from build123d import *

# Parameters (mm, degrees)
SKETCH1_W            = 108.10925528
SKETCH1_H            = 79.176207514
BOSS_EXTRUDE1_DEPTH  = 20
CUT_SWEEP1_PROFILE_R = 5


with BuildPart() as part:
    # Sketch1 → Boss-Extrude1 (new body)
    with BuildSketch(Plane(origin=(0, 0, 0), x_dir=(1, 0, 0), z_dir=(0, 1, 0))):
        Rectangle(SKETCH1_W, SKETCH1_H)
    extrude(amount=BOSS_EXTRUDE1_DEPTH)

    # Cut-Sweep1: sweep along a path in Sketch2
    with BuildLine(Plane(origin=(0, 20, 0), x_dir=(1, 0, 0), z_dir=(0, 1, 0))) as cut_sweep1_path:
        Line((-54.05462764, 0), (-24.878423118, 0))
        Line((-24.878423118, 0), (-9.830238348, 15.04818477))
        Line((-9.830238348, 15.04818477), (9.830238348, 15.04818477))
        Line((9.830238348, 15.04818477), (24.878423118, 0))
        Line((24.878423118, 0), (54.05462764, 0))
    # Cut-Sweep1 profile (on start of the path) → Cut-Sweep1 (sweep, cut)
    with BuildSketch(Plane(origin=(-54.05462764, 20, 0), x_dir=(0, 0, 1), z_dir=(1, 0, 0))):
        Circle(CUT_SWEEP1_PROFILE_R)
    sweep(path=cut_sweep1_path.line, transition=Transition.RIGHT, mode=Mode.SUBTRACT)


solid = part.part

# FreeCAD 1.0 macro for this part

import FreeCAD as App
import Part
import Sketcher
from FreeCAD import Vector
Q = App.Units.Quantity


def add_polygon(sketch, points):
    """Adds a closed chain of lines whose ends are joined by coincident constraints."""
    first, n = sketch.GeometryCount, len(points)
    for a, b in zip(points, points[1:] + points[:1]):
        sketch.addGeometry(Part.LineSegment(App.Vector(*a, 0), App.Vector(*b, 0)), False)
    for i in range(n):
        sketch.addConstraint(Sketcher.Constraint("Coincident", first + i, 2, first + (i + 1) % n, 1))

doc = App.newDocument("Part")
body = doc.addObject("PartDesign::Body", "Body")

sketch1 = body.newObject("Sketcher::SketchObject", "Sketch")
sketch1.AttachmentSupport = (doc.getObject("XZ_Plane"), [""])
sketch1.MapMode = "FlatFace"
add_polygon(sketch1, [(-54, -40), (-54, 40), (54, 40), (54, -40)])
sketch1.addConstraint([
    Sketcher.Constraint("Vertical", 0),
    Sketcher.Constraint("Horizontal", 1),
    Sketcher.Constraint("Vertical", 2),
    Sketcher.Constraint("Horizontal", 3),
    Sketcher.Constraint("Symmetric", 0, 2, 2, 2, -1, 1),
    Sketcher.Constraint("DistanceX", 1, 1, 1, 2, Q("108.109255 mm")),
    Sketcher.Constraint("DistanceY", 0, 1, 0, 2, Q("79.176208 mm")),
])
pad1 = body.newObject("PartDesign::Pad", "Pad")
pad1.Profile = sketch1
pad1.Length = 20
pad1.Reversed = True

sketch2 = body.newObject("Sketcher::SketchObject", "Sketch001")
sketch2.AttachmentSupport = (doc.getObject("YZ_Plane"), [""])
sketch2.MapMode = "FlatFace"
sketch2.AttachmentOffset = App.Placement(Vector(0, 0, -54.054628), App.Rotation())
sketch2.addGeometry(Part.Circle(Vector(20, 0, 0), Vector(0, 0, 1), 5), False)
sketch2.addConstraint([
    Sketcher.Constraint("PointOnObject", 0, 3, -1),
    Sketcher.Constraint("Diameter", 0, Q("10 mm")),
    Sketcher.Constraint("DistanceX", -1, 1, 0, 3, Q("20 mm")),
])

sketch3 = body.newObject("Sketcher::SketchObject", "Sketch002")
sketch3.AttachmentSupport = (doc.getObject("XZ_Plane"), [""])
sketch3.MapMode = "FlatFace"
sketch3.AttachmentOffset = App.Placement(Vector(0, 0, -20), App.Rotation())
sketch3.addGeometry([
    Part.LineSegment(Vector(-54, 0, 0), Vector(-25, 0, 0)),
    Part.LineSegment(Vector(-25, 0, 0), Vector(-10, -15, 0)),
    Part.LineSegment(Vector(-10, -15, 0), Vector(10, -15, 0)),
    Part.LineSegment(Vector(10, -15, 0), Vector(25, 0, 0)),
    Part.LineSegment(Vector(25, 0, 0), Vector(54, 0, 0)),
], False)
sketch3.addConstraint([
    Sketcher.Constraint("Coincident", 0, 2, 1, 1),
    Sketcher.Constraint("Coincident", 1, 2, 2, 1),
    Sketcher.Constraint("Coincident", 2, 2, 3, 1),
    Sketcher.Constraint("Coincident", 3, 2, 4, 1),
    Sketcher.Constraint("Horizontal", 0),
    Sketcher.Constraint("Horizontal", 2),
    Sketcher.Constraint("Horizontal", 4),
    Sketcher.Constraint("Symmetric", 0, 2, 3, 2, -1, 1),
    Sketcher.Constraint("Symmetric", 0, 1, 4, 2, -2),
    Sketcher.Constraint("Perpendicular", 1, 3),
    Sketcher.Constraint("Equal", 1, 3),
    Sketcher.Constraint("DistanceX", 0, 1, 0, 2, Q("29.176205 mm")),
    Sketcher.Constraint("DistanceX", 2, 1, 2, 2, Q("19.660477 mm")),
    Sketcher.Constraint("DistanceX", 0, 1, 1, 2, Q("44.224389 mm")),
])
doc.recompute()

subtractivepipe = body.newObject("PartDesign::SubtractivePipe", "SubtractivePipe")
subtractivepipe.Profile = sketch2
subtractivepipe.Spine = (sketch3, ["Edge1", "Edge2", "Edge3", "Edge4", "Edge5"])
subtractivepipe.Transition = "Right corner"

doc.recompute()
